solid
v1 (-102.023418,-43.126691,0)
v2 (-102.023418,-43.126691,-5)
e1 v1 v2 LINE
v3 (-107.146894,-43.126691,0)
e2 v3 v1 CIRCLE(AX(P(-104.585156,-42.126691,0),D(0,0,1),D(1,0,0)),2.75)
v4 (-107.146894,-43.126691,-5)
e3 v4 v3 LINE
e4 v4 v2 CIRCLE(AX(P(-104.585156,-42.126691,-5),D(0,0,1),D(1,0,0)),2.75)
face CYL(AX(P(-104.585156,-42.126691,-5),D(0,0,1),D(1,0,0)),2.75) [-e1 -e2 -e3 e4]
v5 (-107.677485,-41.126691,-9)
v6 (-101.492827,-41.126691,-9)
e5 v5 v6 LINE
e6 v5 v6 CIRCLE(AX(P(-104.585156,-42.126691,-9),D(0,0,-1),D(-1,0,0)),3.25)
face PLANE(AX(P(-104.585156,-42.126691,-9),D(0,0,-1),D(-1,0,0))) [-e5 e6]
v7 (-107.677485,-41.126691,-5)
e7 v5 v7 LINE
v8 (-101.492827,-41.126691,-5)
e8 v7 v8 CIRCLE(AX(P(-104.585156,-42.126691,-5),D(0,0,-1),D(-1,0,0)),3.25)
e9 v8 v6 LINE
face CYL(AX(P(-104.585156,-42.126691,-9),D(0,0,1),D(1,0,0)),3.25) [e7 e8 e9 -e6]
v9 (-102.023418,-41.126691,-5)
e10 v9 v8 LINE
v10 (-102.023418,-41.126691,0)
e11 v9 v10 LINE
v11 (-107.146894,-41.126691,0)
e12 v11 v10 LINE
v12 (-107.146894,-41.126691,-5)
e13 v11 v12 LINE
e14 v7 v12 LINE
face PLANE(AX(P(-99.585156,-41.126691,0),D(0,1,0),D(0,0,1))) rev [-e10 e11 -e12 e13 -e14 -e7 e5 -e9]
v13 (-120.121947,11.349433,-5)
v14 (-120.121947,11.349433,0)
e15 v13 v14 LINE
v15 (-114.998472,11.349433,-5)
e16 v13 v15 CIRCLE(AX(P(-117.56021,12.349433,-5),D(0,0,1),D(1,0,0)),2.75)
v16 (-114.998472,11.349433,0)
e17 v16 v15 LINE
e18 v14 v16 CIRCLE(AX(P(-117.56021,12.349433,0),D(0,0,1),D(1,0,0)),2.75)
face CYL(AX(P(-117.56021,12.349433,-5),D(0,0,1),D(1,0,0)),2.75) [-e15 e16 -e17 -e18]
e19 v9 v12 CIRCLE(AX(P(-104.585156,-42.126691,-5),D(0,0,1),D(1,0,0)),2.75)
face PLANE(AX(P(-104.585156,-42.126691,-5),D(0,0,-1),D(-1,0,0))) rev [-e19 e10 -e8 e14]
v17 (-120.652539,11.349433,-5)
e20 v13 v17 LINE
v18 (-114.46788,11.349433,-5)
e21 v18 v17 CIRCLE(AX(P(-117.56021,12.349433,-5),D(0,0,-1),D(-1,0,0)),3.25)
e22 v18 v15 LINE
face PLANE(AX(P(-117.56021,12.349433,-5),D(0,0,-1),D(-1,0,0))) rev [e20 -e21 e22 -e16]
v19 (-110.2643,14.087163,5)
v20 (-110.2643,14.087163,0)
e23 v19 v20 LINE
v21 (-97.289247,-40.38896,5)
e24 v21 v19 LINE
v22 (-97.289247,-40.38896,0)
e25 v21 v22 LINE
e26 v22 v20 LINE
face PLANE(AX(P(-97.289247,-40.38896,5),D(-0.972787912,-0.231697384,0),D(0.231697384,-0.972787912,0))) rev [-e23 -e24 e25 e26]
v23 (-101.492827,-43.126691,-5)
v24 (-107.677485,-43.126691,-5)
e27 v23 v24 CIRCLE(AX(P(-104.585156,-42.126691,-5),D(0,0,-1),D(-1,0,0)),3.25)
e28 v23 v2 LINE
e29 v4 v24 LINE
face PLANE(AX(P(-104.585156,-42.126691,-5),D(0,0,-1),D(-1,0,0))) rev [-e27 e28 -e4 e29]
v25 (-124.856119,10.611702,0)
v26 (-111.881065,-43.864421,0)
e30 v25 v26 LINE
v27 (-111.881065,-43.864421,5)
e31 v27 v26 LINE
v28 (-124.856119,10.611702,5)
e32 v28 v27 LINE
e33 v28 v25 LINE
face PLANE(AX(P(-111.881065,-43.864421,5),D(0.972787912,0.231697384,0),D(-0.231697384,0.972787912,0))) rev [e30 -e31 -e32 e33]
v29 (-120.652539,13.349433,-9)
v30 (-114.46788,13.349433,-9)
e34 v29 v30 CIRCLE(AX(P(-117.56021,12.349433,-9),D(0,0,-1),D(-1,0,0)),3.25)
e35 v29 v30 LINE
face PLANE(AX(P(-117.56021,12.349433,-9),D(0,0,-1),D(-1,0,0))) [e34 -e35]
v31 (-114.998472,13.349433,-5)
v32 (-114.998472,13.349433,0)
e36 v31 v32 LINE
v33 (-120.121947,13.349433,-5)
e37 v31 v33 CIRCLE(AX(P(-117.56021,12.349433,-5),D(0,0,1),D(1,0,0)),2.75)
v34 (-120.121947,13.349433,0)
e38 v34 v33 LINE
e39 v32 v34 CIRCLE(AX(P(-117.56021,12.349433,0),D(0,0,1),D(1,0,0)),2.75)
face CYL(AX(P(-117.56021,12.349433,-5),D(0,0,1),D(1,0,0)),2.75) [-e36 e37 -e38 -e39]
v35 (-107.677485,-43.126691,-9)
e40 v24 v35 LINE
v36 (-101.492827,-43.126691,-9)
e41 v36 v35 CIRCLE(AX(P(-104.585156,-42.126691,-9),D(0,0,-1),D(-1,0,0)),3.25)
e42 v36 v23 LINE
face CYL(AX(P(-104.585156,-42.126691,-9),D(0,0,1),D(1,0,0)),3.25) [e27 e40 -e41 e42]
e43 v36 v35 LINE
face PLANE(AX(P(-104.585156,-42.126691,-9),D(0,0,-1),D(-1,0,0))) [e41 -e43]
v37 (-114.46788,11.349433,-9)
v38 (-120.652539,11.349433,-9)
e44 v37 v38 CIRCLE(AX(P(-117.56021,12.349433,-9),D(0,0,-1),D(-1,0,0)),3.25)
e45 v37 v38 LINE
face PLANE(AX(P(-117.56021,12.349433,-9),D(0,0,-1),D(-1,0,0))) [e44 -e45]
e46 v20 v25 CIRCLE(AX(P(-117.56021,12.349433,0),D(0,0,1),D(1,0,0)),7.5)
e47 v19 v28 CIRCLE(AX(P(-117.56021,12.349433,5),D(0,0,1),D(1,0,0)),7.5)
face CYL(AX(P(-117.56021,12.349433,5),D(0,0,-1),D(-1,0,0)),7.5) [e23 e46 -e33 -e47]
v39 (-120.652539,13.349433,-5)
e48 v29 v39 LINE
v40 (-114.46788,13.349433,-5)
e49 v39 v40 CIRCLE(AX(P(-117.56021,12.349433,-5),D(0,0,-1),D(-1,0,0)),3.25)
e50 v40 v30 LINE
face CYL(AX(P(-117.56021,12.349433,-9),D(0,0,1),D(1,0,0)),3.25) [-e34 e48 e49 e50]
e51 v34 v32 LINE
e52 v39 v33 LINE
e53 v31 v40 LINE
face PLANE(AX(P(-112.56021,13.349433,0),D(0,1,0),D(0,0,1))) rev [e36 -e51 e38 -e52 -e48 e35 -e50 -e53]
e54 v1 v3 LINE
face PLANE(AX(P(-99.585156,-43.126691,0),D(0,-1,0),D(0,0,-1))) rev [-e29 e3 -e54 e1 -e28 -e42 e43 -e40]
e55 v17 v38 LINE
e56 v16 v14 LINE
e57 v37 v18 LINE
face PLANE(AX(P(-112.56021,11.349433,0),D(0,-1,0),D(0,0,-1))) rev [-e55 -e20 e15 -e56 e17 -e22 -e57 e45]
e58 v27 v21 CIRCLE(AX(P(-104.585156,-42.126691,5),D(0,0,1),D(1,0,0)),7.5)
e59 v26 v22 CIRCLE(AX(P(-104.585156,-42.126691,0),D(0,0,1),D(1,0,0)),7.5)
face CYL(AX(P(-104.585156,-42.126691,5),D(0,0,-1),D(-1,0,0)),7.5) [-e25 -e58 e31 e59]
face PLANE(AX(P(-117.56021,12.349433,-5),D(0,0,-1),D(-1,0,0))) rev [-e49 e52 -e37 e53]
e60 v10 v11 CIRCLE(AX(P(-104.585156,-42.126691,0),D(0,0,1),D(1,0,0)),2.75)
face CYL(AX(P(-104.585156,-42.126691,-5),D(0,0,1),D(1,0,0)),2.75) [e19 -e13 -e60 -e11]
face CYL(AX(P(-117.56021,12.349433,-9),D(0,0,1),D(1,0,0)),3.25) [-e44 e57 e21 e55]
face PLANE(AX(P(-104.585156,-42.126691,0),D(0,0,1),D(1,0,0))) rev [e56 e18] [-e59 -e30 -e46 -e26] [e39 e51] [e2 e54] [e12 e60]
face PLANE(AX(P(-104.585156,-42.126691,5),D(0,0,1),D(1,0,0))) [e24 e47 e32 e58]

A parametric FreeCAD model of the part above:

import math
import FreeCAD as App
import Part
import Sketcher

V = App.Vector

doc = App.newDocument("Part")
body = doc.addObject("PartDesign::Body", "Body")

sketch1 = body.newObject("Sketcher::SketchObject", "Sketch")
sketch1.AttachmentSupport = (doc.getObject("XY_Plane"), [""])
sketch1.MapMode = "FlatFace"
sketch1.addGeometry([
    Part.LineSegment(V(-124.856119, 10.611702, 0), V(-111.881065, -43.864421, 0)),
    Part.ArcOfCircle(Part.Circle(V(-104.585156, -42.126691, 0), V(0, 0, 1), 7.5), math.radians(-166.602976), math.radians(13.397024)),
    Part.LineSegment(V(-97.289247, -40.38896, 0), V(-110.2643, 14.087163, 0)),
    Part.ArcOfCircle(Part.Circle(V(-117.56021, 12.349433, 0), V(0, 0, 1), 7.5), math.radians(13.397024), math.radians(193.397024)),
], False)
sketch1.addConstraint([
    Sketcher.Constraint("Coincident", 0, 2, 1, 1),
    Sketcher.Constraint("Coincident", 1, 2, 2, 1),
    Sketcher.Constraint("Coincident", 2, 2, 3, 1),
    Sketcher.Constraint("Coincident", 3, 2, 0, 1),
    Sketcher.Constraint("Radius", 1, 7.5),
    Sketcher.Constraint("Radius", 3, 7.5),
    Sketcher.Constraint("Distance", 0, 56.0),
    Sketcher.Constraint("Distance", 2, 56.0),
    Sketcher.Constraint("DistanceX", 2, 2, -1, 1, 110.2643),
    Sketcher.Constraint("DistanceY", 1, 3, -1, 1, 42.126691),
    Sketcher.Constraint("DistanceX", 3, 3, -1, 1, 117.56021),
    Sketcher.Constraint("DistanceY", 0, 2, -1, 1, 43.864421),
    Sketcher.Constraint("DistanceY", 1, 2, -1, 1, 40.38896),
    Sketcher.Constraint("DistanceX", 1, 3, -1, 1, 104.585156),
])
pad1 = body.newObject("PartDesign::Pad", "Pad")
pad1.Profile = sketch1
pad1.Length = 5

sketch2 = body.newObject("Sketcher::SketchObject", "Sketch001")
sketch2.AttachmentSupport = (doc.getObject("XY_Plane"), [""])
sketch2.MapMode = "FlatFace"
sketch2.addGeometry([
    Part.Circle(V(-117.56021, 12.349433, 0), V(0, 0, 1), 2.75),
    Part.Circle(V(-104.585156, -42.126691, 0), V(0, 0, 1), 2.75),
], False)
sketch2.addConstraint([
    Sketcher.Constraint("Equal", 0, 1),
    Sketcher.Constraint("Diameter", 0, 5.5),
    Sketcher.Constraint("DistanceX", 0, 3, -1, 1, 117.56021),
    Sketcher.Constraint("DistanceY", 1, 3, -1, 1, 42.126691),
    Sketcher.Constraint("DistanceY", -1, 1, 0, 3, 12.349433),
    Sketcher.Constraint("DistanceX", 1, 3, -1, 1, 104.585156),
])
pad2 = body.newObject("PartDesign::Pad", "Pad001")
pad2.Profile = sketch2
pad2.Length = 5
pad2.Reversed = True

sketch3 = body.newObject("Sketcher::SketchObject", "Sketch002")
sketch3.AttachmentSupport = (doc.getObject("XY_Plane"), [""])
sketch3.MapMode = "FlatFace"
sketch3.AttachmentOffset = App.Placement(V(0, 0, -5), App.Rotation())
sketch3.addGeometry([
    Part.Circle(V(-117.56021, 12.349433, 0), V(0, 0, 1), 3.25),
    Part.Circle(V(-104.585156, -42.126691, 0), V(0, 0, 1), 3.25),
], False)
sketch3.addConstraint([
    Sketcher.Constraint("Equal", 0, 1),
    Sketcher.Constraint("Diameter", 0, 6.5),
    Sketcher.Constraint("DistanceX", 0, 3, -1, 1, 117.56021),
    Sketcher.Constraint("DistanceY", 1, 3, -1, 1, 42.126691),
    Sketcher.Constraint("DistanceY", -1, 1, 0, 3, 12.349433),
    Sketcher.Constraint("DistanceX", 1, 3, -1, 1, 104.585156),
])
pad3 = body.newObject("PartDesign::Pad", "Pad002")
pad3.Profile = sketch3
pad3.Length = 4
pad3.Reversed = True

sketch4 = body.newObject("Sketcher::SketchObject", "Sketch003")
sketch4.AttachmentSupport = (doc.getObject("XY_Plane"), [""])
sketch4.MapMode = "FlatFace"
sketch4.AttachmentOffset = App.Placement(V(0, 0, -9), App.Rotation())
sketch4.addGeometry([
    Part.LineSegment(V(-99.585156, -41.126691, 0), V(-99.585156, -43.126691, 0)),
    Part.LineSegment(V(-99.585156, -43.126691, 0), V(-109.585156, -43.126691, 0)),
    Part.LineSegment(V(-109.585156, -43.126691, 0), V(-109.585156, -41.126691, 0)),
    Part.LineSegment(V(-109.585156, -41.126691, 0), V(-99.585156, -41.126691, 0)),
    Part.LineSegment(V(-112.56021, 13.349433, 0), V(-112.56021, 11.349433, 0)),
    Part.LineSegment(V(-112.56021, 11.349433, 0), V(-122.56021, 11.349433, 0)),
    Part.LineSegment(V(-122.56021, 11.349433, 0), V(-122.56021, 13.349433, 0)),
    Part.LineSegment(V(-122.56021, 13.349433, 0), V(-112.56021, 13.349433, 0)),
], False)
sketch4.addConstraint([
    Sketcher.Constraint("Coincident", 0, 2, 1, 1),
    Sketcher.Constraint("Coincident", 1, 2, 2, 1),
    Sketcher.Constraint("Coincident", 2, 2, 3, 1),
    Sketcher.Constraint("Coincident", 3, 2, 0, 1),
    Sketcher.Constraint("Coincident", 4, 2, 5, 1),
    Sketcher.Constraint("Coincident", 5, 2, 6, 1),
    Sketcher.Constraint("Coincident", 6, 2, 7, 1),
    Sketcher.Constraint("Coincident", 7, 2, 4, 1),
    Sketcher.Constraint("Vertical", 0),
    Sketcher.Constraint("Horizontal", 1),
    Sketcher.Constraint("Vertical", 2),
    Sketcher.Constraint("Horizontal", 3),
    Sketcher.Constraint("Vertical", 4),
    Sketcher.Constraint("Horizontal", 5),
    Sketcher.Constraint("Vertical", 6),
    Sketcher.Constraint("Horizontal", 7),
    Sketcher.Constraint("Equal", 3, 5),
    Sketcher.Constraint("Equal", 2, 4),
    Sketcher.Constraint("DistanceX", 1, 2, 1, 1, 10.0),
    Sketcher.Constraint("DistanceY", 0, 2, 0, 1, 2.0),
    Sketcher.Constraint("DistanceY", 0, 2, -1, 1, 43.126691),
    Sketcher.Constraint("DistanceX", 4, 2, -1, 1, 112.56021),
    Sketcher.Constraint("DistanceX", 0, 2, -1, 1, 99.585156),
    Sketcher.Constraint("DistanceY", -1, 1, 4, 2, 11.349433),
])
pocket1 = body.newObject("PartDesign::Pocket", "Pocket")
pocket1.Profile = sketch4
pocket1.Length = 9
pocket1.Reversed = True

doc.recompute()
